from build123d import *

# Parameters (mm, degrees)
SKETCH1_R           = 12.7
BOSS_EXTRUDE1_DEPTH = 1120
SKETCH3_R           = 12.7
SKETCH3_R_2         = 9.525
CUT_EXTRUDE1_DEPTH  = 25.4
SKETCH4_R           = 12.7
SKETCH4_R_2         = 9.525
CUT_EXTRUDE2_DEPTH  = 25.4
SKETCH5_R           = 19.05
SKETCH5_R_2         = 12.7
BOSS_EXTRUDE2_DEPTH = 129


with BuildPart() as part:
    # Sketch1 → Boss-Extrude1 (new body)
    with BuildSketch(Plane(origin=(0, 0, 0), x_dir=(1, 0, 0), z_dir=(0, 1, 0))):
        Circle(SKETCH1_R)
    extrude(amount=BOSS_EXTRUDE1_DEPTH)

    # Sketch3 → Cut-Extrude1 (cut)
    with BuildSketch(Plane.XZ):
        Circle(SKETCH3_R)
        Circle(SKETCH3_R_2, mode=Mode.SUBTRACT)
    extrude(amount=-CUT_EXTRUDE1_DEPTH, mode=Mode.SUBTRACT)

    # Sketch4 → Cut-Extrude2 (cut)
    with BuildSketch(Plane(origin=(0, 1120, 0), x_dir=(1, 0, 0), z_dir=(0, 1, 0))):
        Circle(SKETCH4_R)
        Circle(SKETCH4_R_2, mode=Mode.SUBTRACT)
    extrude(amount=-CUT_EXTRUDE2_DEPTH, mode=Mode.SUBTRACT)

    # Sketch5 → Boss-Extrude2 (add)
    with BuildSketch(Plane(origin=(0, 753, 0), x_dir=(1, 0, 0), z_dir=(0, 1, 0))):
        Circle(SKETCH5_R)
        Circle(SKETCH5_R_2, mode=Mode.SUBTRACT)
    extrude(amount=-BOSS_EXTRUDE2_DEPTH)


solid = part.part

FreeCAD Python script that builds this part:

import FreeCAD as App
import Part
import Sketcher
Q = App.Units.Quantity

doc = App.newDocument("Part")
body = doc.addObject("PartDesign::Body", "Body")

sketch1 = body.newObject("Sketcher::SketchObject", "Sketch")
sketch1.AttachmentSupport = (doc.getObject("XZ_Plane"), [""])
sketch1.MapMode = "FlatFace"
sketch1.addGeometry(Part.Circle(App.Vector(0, 0, 0), App.Vector(0, 0, 1), 12.7), False)
sketch1.addConstraint(Sketcher.Constraint("Coincident", 0, 3, -1, 1))
sketch1.addConstraint(Sketcher.Constraint("Diameter", 0, Q("1 in")))
pad1 = body.newObject("PartDesign::Pad", "Pad")
pad1.Profile = sketch1
pad1.Length = 1120
pad1.Reversed = True

sketch2 = body.newObject("Sketcher::SketchObject", "Sketch001")
sketch2.AttachmentSupport = (doc.getObject("XZ_Plane"), [""])
sketch2.MapMode = "FlatFace"
sketch2.addGeometry(Part.Circle(App.Vector(0, 0, 0), App.Vector(0, 0, 1), 12.7), False)
sketch2.addGeometry(Part.Circle(App.Vector(0, 0, 0), App.Vector(0, 0, 1), 9.525), False)
sketch2.addConstraint(Sketcher.Constraint("Coincident", 0, 3, -1, 1))
sketch2.addConstraint(Sketcher.Constraint("Coincident", 1, 3, -1, 1))
sketch2.addConstraint(Sketcher.Constraint("Diameter", 0, Q("1 in")))
sketch2.addConstraint(Sketcher.Constraint("Diameter", 1, Q("0.75 in")))
pocket1 = body.newObject("PartDesign::Pocket", "Pocket")
pocket1.Profile = sketch2
pocket1.Length = Q("1 in")

sketch3 = body.newObject("Sketcher::SketchObject", "Sketch002")
sketch3.AttachmentSupport = (doc.getObject("XZ_Plane"), [""])
sketch3.MapMode = "FlatFace"
sketch3.AttachmentOffset = App.Placement(App.Vector(0, 0, -1120), App.Rotation())
sketch3.addGeometry(Part.Circle(App.Vector(0, 0, 0), App.Vector(0, 0, 1), 12.7), False)
sketch3.addGeometry(Part.Circle(App.Vector(0, 0, 0), App.Vector(0, 0, 1), 9.525), False)
sketch3.addConstraint(Sketcher.Constraint("Coincident", 0, 3, -1, 1))
sketch3.addConstraint(Sketcher.Constraint("Coincident", 1, 3, -1, 1))
sketch3.addConstraint(Sketcher.Constraint("Diameter", 0, Q("1 in")))
sketch3.addConstraint(Sketcher.Constraint("Diameter", 1, Q("0.75 in")))
pocket2 = body.newObject("PartDesign::Pocket", "Pocket001")
pocket2.Profile = sketch3
pocket2.Length = Q("1 in")
pocket2.Reversed = True

sketch4 = body.newObject("Sketcher::SketchObject", "Sketch003")
sketch4.AttachmentSupport = (doc.getObject("XZ_Plane"), [""])
sketch4.MapMode = "FlatFace"
sketch4.AttachmentOffset = App.Placement(App.Vector(0, 0, -753), App.Rotation())
sketch4.addGeometry(Part.Circle(App.Vector(0, 0, 0), App.Vector(0, 0, 1), 19.05), False)
sketch4.addGeometry(Part.Circle(App.Vector(0, 0, 0), App.Vector(0, 0, 1), 12.7), False)
sketch4.addConstraint(Sketcher.Constraint("Coincident", 0, 3, -1, 1))
sketch4.addConstraint(Sketcher.Constraint("Coincident", 1, 3, -1, 1))
sketch4.addConstraint(Sketcher.Constraint("Diameter", 1, Q("1 in")))
sketch4.addConstraint(Sketcher.Constraint("Diameter", 0, Q("1.5 in")))
pad2 = body.newObject("PartDesign::Pad", "Pad001")
pad2.Profile = sketch4
pad2.Length = 129

doc.recompute()
